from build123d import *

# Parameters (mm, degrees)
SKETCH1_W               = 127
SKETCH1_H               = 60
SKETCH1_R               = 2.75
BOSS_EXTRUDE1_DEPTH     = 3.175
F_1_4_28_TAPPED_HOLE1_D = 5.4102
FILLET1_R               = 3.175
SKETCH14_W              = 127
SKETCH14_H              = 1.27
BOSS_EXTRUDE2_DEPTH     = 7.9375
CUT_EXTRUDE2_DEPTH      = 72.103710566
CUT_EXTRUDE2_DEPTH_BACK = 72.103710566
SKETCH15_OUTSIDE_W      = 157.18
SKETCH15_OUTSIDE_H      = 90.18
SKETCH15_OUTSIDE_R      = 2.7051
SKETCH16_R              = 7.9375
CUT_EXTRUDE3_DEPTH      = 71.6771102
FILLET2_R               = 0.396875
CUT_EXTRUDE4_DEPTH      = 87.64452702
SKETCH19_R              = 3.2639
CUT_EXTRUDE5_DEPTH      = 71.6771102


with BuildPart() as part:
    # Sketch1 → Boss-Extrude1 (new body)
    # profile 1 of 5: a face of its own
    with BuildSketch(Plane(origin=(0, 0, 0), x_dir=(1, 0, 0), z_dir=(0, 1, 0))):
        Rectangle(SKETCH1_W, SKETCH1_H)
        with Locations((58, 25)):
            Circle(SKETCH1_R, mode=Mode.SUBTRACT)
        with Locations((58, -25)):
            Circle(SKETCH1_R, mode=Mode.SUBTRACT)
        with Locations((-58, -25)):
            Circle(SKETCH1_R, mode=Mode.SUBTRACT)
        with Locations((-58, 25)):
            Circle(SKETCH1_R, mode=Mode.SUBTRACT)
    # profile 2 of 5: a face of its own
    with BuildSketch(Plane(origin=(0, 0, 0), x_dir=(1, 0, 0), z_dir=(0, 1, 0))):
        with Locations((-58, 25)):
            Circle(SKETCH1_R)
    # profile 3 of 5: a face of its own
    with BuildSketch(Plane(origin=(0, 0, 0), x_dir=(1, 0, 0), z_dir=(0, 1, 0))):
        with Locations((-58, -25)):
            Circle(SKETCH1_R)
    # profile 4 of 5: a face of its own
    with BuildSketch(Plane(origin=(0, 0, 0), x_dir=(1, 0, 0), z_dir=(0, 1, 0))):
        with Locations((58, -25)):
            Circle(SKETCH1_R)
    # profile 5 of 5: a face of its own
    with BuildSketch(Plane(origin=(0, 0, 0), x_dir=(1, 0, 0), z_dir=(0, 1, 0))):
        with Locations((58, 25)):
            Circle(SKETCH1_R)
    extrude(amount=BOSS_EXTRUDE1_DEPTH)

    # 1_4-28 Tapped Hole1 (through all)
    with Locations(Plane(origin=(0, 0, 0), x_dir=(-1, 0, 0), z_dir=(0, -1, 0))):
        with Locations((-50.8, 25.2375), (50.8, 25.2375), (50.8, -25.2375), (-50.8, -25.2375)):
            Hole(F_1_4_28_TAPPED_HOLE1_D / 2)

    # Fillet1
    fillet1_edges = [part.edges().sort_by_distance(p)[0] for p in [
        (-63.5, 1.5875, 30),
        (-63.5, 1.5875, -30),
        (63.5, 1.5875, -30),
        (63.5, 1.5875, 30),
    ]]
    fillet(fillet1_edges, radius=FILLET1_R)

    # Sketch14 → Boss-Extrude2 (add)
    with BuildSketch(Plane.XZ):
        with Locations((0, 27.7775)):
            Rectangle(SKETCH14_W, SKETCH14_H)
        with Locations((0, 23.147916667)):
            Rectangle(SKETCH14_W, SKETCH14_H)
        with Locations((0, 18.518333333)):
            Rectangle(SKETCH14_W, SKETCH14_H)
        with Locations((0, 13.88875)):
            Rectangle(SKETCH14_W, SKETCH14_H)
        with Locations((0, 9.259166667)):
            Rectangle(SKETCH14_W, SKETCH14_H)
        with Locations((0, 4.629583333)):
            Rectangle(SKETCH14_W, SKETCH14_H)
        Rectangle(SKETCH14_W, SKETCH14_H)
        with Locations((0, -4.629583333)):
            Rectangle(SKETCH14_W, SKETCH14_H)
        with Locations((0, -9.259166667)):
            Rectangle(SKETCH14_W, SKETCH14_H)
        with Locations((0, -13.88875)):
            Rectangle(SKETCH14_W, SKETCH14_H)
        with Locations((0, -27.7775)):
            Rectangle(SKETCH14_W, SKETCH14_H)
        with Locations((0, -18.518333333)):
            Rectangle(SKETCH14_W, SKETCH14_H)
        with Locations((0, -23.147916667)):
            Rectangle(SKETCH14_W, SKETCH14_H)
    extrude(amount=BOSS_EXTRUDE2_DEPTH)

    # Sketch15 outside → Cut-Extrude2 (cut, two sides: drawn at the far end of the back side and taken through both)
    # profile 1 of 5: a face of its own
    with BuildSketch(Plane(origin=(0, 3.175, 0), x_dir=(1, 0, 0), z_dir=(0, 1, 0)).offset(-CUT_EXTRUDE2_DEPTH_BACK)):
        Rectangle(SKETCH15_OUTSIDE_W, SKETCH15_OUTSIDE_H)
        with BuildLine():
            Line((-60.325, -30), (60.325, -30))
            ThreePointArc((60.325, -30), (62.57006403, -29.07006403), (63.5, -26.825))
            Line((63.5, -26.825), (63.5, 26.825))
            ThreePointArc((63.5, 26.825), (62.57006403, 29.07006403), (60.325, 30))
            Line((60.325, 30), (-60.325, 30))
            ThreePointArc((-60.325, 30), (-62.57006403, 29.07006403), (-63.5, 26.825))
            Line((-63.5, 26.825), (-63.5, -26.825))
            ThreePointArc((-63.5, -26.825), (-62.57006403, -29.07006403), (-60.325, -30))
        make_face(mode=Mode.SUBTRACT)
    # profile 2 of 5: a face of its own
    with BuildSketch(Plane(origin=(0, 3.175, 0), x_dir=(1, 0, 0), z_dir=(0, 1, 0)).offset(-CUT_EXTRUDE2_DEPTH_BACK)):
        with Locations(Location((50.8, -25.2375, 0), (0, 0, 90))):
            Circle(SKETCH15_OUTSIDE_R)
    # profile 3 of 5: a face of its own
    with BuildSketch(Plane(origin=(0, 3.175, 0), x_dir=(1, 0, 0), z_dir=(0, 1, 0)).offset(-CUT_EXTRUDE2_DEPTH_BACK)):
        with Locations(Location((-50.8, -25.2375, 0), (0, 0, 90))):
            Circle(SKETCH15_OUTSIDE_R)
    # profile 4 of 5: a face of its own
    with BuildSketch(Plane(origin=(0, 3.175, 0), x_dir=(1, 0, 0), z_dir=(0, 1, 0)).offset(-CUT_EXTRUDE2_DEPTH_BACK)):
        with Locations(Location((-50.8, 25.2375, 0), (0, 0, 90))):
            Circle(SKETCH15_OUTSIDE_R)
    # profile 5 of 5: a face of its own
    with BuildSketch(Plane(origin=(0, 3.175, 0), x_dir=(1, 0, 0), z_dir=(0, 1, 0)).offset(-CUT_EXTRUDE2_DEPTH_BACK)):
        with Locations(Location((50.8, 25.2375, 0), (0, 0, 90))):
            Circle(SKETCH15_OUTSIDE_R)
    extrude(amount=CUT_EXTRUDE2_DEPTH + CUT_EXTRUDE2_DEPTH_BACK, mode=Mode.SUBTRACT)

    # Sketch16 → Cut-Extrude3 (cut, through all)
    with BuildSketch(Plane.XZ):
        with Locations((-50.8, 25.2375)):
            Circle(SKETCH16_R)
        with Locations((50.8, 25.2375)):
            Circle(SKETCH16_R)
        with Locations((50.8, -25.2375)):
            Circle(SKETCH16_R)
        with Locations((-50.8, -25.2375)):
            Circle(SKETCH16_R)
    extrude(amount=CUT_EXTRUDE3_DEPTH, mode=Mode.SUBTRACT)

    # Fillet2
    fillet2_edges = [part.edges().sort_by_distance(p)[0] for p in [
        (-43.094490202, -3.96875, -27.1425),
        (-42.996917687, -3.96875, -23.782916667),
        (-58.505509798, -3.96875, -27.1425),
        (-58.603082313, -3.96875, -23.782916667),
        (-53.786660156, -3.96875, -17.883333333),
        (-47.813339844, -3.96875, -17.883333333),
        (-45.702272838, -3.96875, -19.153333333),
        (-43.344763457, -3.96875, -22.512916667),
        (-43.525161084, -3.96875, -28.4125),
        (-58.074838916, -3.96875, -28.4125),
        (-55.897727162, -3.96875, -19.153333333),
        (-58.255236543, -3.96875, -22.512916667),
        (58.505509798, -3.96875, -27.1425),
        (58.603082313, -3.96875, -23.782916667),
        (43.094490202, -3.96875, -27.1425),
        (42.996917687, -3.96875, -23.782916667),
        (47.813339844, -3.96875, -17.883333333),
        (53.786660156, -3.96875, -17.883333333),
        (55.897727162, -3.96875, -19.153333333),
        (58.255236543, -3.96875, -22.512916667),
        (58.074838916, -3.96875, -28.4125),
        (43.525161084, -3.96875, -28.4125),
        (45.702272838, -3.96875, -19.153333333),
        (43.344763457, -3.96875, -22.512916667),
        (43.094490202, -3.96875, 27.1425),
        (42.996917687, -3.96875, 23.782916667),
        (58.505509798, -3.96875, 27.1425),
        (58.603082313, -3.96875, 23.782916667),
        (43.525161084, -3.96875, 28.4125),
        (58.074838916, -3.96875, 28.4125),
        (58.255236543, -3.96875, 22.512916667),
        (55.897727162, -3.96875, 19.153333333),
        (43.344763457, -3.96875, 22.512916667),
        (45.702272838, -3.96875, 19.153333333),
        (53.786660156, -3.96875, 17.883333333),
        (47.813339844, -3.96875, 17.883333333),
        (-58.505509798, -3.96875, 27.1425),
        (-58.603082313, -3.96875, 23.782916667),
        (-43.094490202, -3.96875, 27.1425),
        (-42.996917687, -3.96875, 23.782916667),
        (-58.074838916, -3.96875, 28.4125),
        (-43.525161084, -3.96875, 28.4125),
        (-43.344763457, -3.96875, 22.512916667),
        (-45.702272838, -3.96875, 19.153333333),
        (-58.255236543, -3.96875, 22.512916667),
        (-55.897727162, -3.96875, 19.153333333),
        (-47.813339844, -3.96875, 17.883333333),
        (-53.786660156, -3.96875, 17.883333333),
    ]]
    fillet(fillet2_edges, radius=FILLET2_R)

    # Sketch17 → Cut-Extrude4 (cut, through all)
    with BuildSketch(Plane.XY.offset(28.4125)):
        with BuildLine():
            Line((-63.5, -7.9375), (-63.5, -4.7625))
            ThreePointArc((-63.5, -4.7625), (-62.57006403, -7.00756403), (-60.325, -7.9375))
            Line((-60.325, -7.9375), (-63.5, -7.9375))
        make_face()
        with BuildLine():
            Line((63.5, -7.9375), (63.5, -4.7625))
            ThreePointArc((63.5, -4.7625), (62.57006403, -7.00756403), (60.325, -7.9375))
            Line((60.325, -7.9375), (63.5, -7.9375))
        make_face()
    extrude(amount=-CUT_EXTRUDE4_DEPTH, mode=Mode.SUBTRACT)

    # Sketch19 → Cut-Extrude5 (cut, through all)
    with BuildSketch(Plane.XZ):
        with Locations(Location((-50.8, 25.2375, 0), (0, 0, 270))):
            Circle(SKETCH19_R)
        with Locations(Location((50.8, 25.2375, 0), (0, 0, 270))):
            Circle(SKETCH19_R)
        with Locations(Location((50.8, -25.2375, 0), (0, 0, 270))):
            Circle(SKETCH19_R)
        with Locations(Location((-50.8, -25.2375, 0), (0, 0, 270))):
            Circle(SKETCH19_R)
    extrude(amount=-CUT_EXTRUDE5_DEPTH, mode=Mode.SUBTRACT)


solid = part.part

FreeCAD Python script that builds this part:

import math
import FreeCAD as App
import Part
import Sketcher
Q = App.Units.Quantity


def edges_at(feature, points):
    """Names of the edges that pass closest to the given points."""
    edges = feature.Shape.Edges
    near = lambda p: min(range(len(edges)), key=lambda i: edges[i].distToShape(Part.Vertex(*p))[0])
    return sorted({f"Edge{near(p) + 1}" for p in points})

doc = App.newDocument("Part")
params = doc.addObject("Spreadsheet::Sheet", "Params")
for row, (alias, value) in enumerate([
    ("sketch1_width", "5 in"),
    ("pad1_length", "0.125 in"),
    ("sketch2_diameter", "0.213 in"),
    ("hole_diameter", "0.213 in"),
    ("fillet_radius", "0.125 in"),
    ("sketch3_width", "5 in"),
    ("sketch3_height", "0.05 in"),
    ("pad2_length", "0.3125 in"),
    ("sketch4_diameter", "0.213 in"),
    ("sketch4_radius", "0.125 in"),
    ("sketch4_width", "4.75 in"),
    ("sketch5_diameter", "0.625 in"),
    ("fillet2_radius", "0.015625 in"),
    ("sketch6_radius", "0.125 in"),
    ("sketch7_diameter", "0.257 in"),
], start=1):
    params.set(f"A{row}", alias)
    params.set(f"B{row}", "=" + value)
    params.setAlias(f"B{row}", alias)

body = doc.addObject("PartDesign::Body", "Body")

sketch1 = body.newObject("Sketcher::SketchObject", "Sketch")
sketch1.AttachmentSupport = (doc.getObject("XZ_Plane"), [""])
sketch1.MapMode = "FlatFace"
sketch1.addGeometry([
    Part.LineSegment(App.Vector(-64, -30, 0), App.Vector(-64, 30, 0)),
    Part.LineSegment(App.Vector(-64, 30, 0), App.Vector(64, 30, 0)),
    Part.LineSegment(App.Vector(64, 30, 0), App.Vector(64, -30, 0)),
    Part.LineSegment(App.Vector(64, -30, 0), App.Vector(-64, -30, 0)),
], False)
sketch1.addConstraint([
    Sketcher.Constraint("Coincident", 0, 2, 1, 1),
    Sketcher.Constraint("Coincident", 1, 2, 2, 1),
    Sketcher.Constraint("Coincident", 2, 2, 3, 1),
    Sketcher.Constraint("Coincident", 3, 2, 0, 1),
    Sketcher.Constraint("Vertical", 0),
    Sketcher.Constraint("Horizontal", 1),
    Sketcher.Constraint("Vertical", 2),
    Sketcher.Constraint("Horizontal", 3),
    Sketcher.Constraint("Symmetric", 0, 2, 2, 2, -1, 1),
    Sketcher.Constraint("DistanceX", 1, 1, 1, 2, Q("5 in")),
    Sketcher.Constraint("DistanceY", 0, 1, 0, 2, 60.0),
])
sketch1.setExpression("Constraints[9]", "Params.sketch1_width")
pad1 = body.newObject("PartDesign::Pad", "Pad")
pad1.Profile = sketch1
pad1.setExpression("Length", "Params.pad1_length")
pad1.Reversed = True

sketch2 = body.newObject("Sketcher::SketchObject", "Sketch001")
sketch2.AttachmentSupport = (doc.getObject("XZ_Plane"), [""])
sketch2.MapMode = "FlatFace"
sketch2.addGeometry([
    Part.Circle(App.Vector(50.8, -25.2, 0), App.Vector(0, 0, 1), 2.7),
    Part.Circle(App.Vector(-50.8, -25.2, 0), App.Vector(0, 0, 1), 2.7),
    Part.Circle(App.Vector(-50.8, 25.2, 0), App.Vector(0, 0, 1), 2.7),
    Part.Circle(App.Vector(50.8, 25.2, 0), App.Vector(0, 0, 1), 2.7),
], False)
sketch2.addConstraint([
    Sketcher.Constraint("Equal", 0, 1),
    Sketcher.Constraint("Equal", 1, 2),
    Sketcher.Constraint("Equal", 2, 3),
    Sketcher.Constraint("Symmetric", 0, 3, 2, 3, -1, 1),
    Sketcher.Constraint("Symmetric", 1, 3, 3, 3, -1, 1),
    Sketcher.Constraint("Symmetric", 0, 3, 1, 3, -2),
    Sketcher.Constraint("Diameter", 0, Q("0.213 in")),
    Sketcher.Constraint("DistanceX", -1, 1, 0, 3, Q("2 in")),
    Sketcher.Constraint("DistanceY", 0, 3, -1, 1, 25.2375),
])
sketch2.setExpression("Constraints[6]", "Params.sketch2_diameter")
doc.recompute()
hole = body.newObject("PartDesign::Hole", "Hole")
hole.Profile = sketch2
hole.ThreadType = "None"
hole.setExpression("Diameter", "Params.hole_diameter")
hole.DepthType = "ThroughAll"
doc.recompute()

fillet = body.newObject("PartDesign::Fillet", "Fillet")
fillet.Base = (hole, edges_at(hole, [
    (-63.5, 1.587, 30),
    (-63.5, 1.587, -30),
    (63.5, 1.587, -30),
    (63.5, 1.587, 30),
]))
fillet.setExpression("Radius", "Params.fillet_radius")

sketch3 = body.newObject("Sketcher::SketchObject", "Sketch002")
sketch3.AttachmentSupport = (doc.getObject("XZ_Plane"), [""])
sketch3.MapMode = "FlatFace"
sketch3.addGeometry([
    Part.LineSegment(App.Vector(-63.5, 28.4, 0), App.Vector(-63.5, 27.1, 0)),
    Part.LineSegment(App.Vector(-63.5, 27.1, 0), App.Vector(63.5, 27.1, 0)),
    Part.LineSegment(App.Vector(63.5, 27.1, 0), App.Vector(63.5, 28.4, 0)),
    Part.LineSegment(App.Vector(63.5, 28.4, 0), App.Vector(-63.5, 28.4, 0)),
    Part.LineSegment(App.Vector(-63.5, 23.8, 0), App.Vector(-63.5, 22.5, 0)),
    Part.LineSegment(App.Vector(-63.5, 22.5, 0), App.Vector(63.5, 22.5, 0)),
    Part.LineSegment(App.Vector(63.5, 22.5, 0), App.Vector(63.5, 23.8, 0)),
    Part.LineSegment(App.Vector(63.5, 23.8, 0), App.Vector(-63.5, 23.8, 0)),
    Part.LineSegment(App.Vector(-63.5, 19.2, 0), App.Vector(-63.5, 17.9, 0)),
    Part.LineSegment(App.Vector(-63.5, 17.9, 0), App.Vector(63.5, 17.9, 0)),
    Part.LineSegment(App.Vector(63.5, 17.9, 0), App.Vector(63.5, 19.2, 0)),
    Part.LineSegment(App.Vector(63.5, 19.2, 0), App.Vector(-63.5, 19.2, 0)),
    Part.LineSegment(App.Vector(-63.5, 14.5, 0), App.Vector(-63.5, 13.3, 0)),
    Part.LineSegment(App.Vector(-63.5, 13.3, 0), App.Vector(63.5, 13.3, 0)),
    Part.LineSegment(App.Vector(63.5, 13.3, 0), App.Vector(63.5, 14.5, 0)),
    Part.LineSegment(App.Vector(63.5, 14.5, 0), App.Vector(-63.5, 14.5, 0)),
    Part.LineSegment(App.Vector(-63.5, 9.9, 0), App.Vector(-63.5, 8.6, 0)),
    Part.LineSegment(App.Vector(-63.5, 8.6, 0), App.Vector(63.5, 8.6, 0)),
    Part.LineSegment(App.Vector(63.5, 8.6, 0), App.Vector(63.5, 9.9, 0)),
    Part.LineSegment(App.Vector(63.5, 9.9, 0), App.Vector(-63.5, 9.9, 0)),
    Part.LineSegment(App.Vector(-63.5, 5.3, 0), App.Vector(-63.5, 4, 0)),
    Part.LineSegment(App.Vector(-63.5, 4, 0), App.Vector(63.5, 4, 0)),
    Part.LineSegment(App.Vector(63.5, 4, 0), App.Vector(63.5, 5.3, 0)),
    Part.LineSegment(App.Vector(63.5, 5.3, 0), App.Vector(-63.5, 5.3, 0)),
    Part.LineSegment(App.Vector(-63.5, 0.6, 0), App.Vector(-63.5, -0.6, 0)),
    Part.LineSegment(App.Vector(-63.5, -0.6, 0), App.Vector(63.5, -0.6, 0)),
    Part.LineSegment(App.Vector(63.5, -0.6, 0), App.Vector(63.5, 0.6, 0)),
    Part.LineSegment(App.Vector(63.5, 0.6, 0), App.Vector(-63.5, 0.6, 0)),
    Part.LineSegment(App.Vector(-63.5, -4, 0), App.Vector(-63.5, -5.3, 0)),
    Part.LineSegment(App.Vector(-63.5, -5.3, 0), App.Vector(63.5, -5.3, 0)),
    Part.LineSegment(App.Vector(63.5, -5.3, 0), App.Vector(63.5, -4, 0)),
    Part.LineSegment(App.Vector(63.5, -4, 0), App.Vector(-63.5, -4, 0)),
    Part.LineSegment(App.Vector(-63.5, -8.6, 0), App.Vector(-63.5, -9.9, 0)),
    Part.LineSegment(App.Vector(-63.5, -9.9, 0), App.Vector(63.5, -9.9, 0)),
    Part.LineSegment(App.Vector(63.5, -9.9, 0), App.Vector(63.5, -8.6, 0)),
    Part.LineSegment(App.Vector(63.5, -8.6, 0), App.Vector(-63.5, -8.6, 0)),
    Part.LineSegment(App.Vector(-63.5, -13.3, 0), App.Vector(-63.5, -14.5, 0)),
    Part.LineSegment(App.Vector(-63.5, -14.5, 0), App.Vector(63.5, -14.5, 0)),
    Part.LineSegment(App.Vector(63.5, -14.5, 0), App.Vector(63.5, -13.3, 0)),
    Part.LineSegment(App.Vector(63.5, -13.3, 0), App.Vector(-63.5, -13.3, 0)),
    Part.LineSegment(App.Vector(-63.5, -27.1, 0), App.Vector(-63.5, -28.4, 0)),
    Part.LineSegment(App.Vector(-63.5, -28.4, 0), App.Vector(63.5, -28.4, 0)),
    Part.LineSegment(App.Vector(63.5, -28.4, 0), App.Vector(63.5, -27.1, 0)),
    Part.LineSegment(App.Vector(63.5, -27.1, 0), App.Vector(-63.5, -27.1, 0)),
    Part.LineSegment(App.Vector(-63.5, -17.9, 0), App.Vector(-63.5, -19.2, 0)),
    Part.LineSegment(App.Vector(-63.5, -19.2, 0), App.Vector(63.5, -19.2, 0)),
    Part.LineSegment(App.Vector(63.5, -19.2, 0), App.Vector(63.5, -17.9, 0)),
    Part.LineSegment(App.Vector(63.5, -17.9, 0), App.Vector(-63.5, -17.9, 0)),
    Part.LineSegment(App.Vector(-63.5, -22.5, 0), App.Vector(-63.5, -23.8, 0)),
    Part.LineSegment(App.Vector(-63.5, -23.8, 0), App.Vector(63.5, -23.8, 0)),
    Part.LineSegment(App.Vector(63.5, -23.8, 0), App.Vector(63.5, -22.5, 0)),
    Part.LineSegment(App.Vector(63.5, -22.5, 0), App.Vector(-63.5, -22.5, 0)),
], False)
sketch3.addConstraint([
    Sketcher.Constraint("Coincident", 0, 2, 1, 1),
    Sketcher.Constraint("Coincident", 1, 2, 2, 1),
    Sketcher.Constraint("Coincident", 2, 2, 3, 1),
    Sketcher.Constraint("Coincident", 3, 2, 0, 1),
    Sketcher.Constraint("Coincident", 4, 2, 5, 1),
    Sketcher.Constraint("Coincident", 5, 2, 6, 1),
    Sketcher.Constraint("Coincident", 6, 2, 7, 1),
    Sketcher.Constraint("Coincident", 7, 2, 4, 1),
    Sketcher.Constraint("Coincident", 8, 2, 9, 1),
    Sketcher.Constraint("Coincident", 9, 2, 10, 1),
    Sketcher.Constraint("Coincident", 10, 2, 11, 1),
    Sketcher.Constraint("Coincident", 11, 2, 8, 1),
    Sketcher.Constraint("Coincident", 12, 2, 13, 1),
    Sketcher.Constraint("Coincident", 13, 2, 14, 1),
    Sketcher.Constraint("Coincident", 14, 2, 15, 1),
    Sketcher.Constraint("Coincident", 15, 2, 12, 1),
    Sketcher.Constraint("Coincident", 16, 2, 17, 1),
    Sketcher.Constraint("Coincident", 17, 2, 18, 1),
    Sketcher.Constraint("Coincident", 18, 2, 19, 1),
    Sketcher.Constraint("Coincident", 19, 2, 16, 1),
    Sketcher.Constraint("Coincident", 20, 2, 21, 1),
    Sketcher.Constraint("Coincident", 21, 2, 22, 1),
    Sketcher.Constraint("Coincident", 22, 2, 23, 1),
    Sketcher.Constraint("Coincident", 23, 2, 20, 1),
    Sketcher.Constraint("Coincident", 24, 2, 25, 1),
    Sketcher.Constraint("Coincident", 25, 2, 26, 1),
    Sketcher.Constraint("Coincident", 26, 2, 27, 1),
    Sketcher.Constraint("Coincident", 27, 2, 24, 1),
    Sketcher.Constraint("Coincident", 28, 2, 29, 1),
    Sketcher.Constraint("Coincident", 29, 2, 30, 1),
    Sketcher.Constraint("Coincident", 30, 2, 31, 1),
    Sketcher.Constraint("Coincident", 31, 2, 28, 1),
    Sketcher.Constraint("Coincident", 32, 2, 33, 1),
    Sketcher.Constraint("Coincident", 33, 2, 34, 1),
    Sketcher.Constraint("Coincident", 34, 2, 35, 1),
    Sketcher.Constraint("Coincident", 35, 2, 32, 1),
    Sketcher.Constraint("Coincident", 36, 2, 37, 1),
    Sketcher.Constraint("Coincident", 37, 2, 38, 1),
    Sketcher.Constraint("Coincident", 38, 2, 39, 1),
    Sketcher.Constraint("Coincident", 39, 2, 36, 1),
    Sketcher.Constraint("Coincident", 40, 2, 41, 1),
    Sketcher.Constraint("Coincident", 41, 2, 42, 1),
    Sketcher.Constraint("Coincident", 42, 2, 43, 1),
    Sketcher.Constraint("Coincident", 43, 2, 40, 1),
    Sketcher.Constraint("Coincident", 44, 2, 45, 1),
    Sketcher.Constraint("Coincident", 45, 2, 46, 1),
    Sketcher.Constraint("Coincident", 46, 2, 47, 1),
    Sketcher.Constraint("Coincident", 47, 2, 44, 1),
    Sketcher.Constraint("Coincident", 48, 2, 49, 1),
    Sketcher.Constraint("Coincident", 49, 2, 50, 1),
    Sketcher.Constraint("Coincident", 50, 2, 51, 1),
    Sketcher.Constraint("Coincident", 51, 2, 48, 1),
    Sketcher.Constraint("Vertical", 0),
    Sketcher.Constraint("Horizontal", 1),
    Sketcher.Constraint("Vertical", 2),
    Sketcher.Constraint("Horizontal", 3),
    Sketcher.Constraint("Vertical", 4),
    Sketcher.Constraint("Horizontal", 5),
    Sketcher.Constraint("Vertical", 6),
    Sketcher.Constraint("Horizontal", 7),
    Sketcher.Constraint("Vertical", 8),
    Sketcher.Constraint("Horizontal", 9),
    Sketcher.Constraint("Vertical", 10),
    Sketcher.Constraint("Horizontal", 11),
    Sketcher.Constraint("Vertical", 12),
    Sketcher.Constraint("Horizontal", 13),
    Sketcher.Constraint("Vertical", 14),
    Sketcher.Constraint("Horizontal", 15),
    Sketcher.Constraint("Vertical", 16),
    Sketcher.Constraint("Horizontal", 17),
    Sketcher.Constraint("Vertical", 18),
    Sketcher.Constraint("Horizontal", 19),
    Sketcher.Constraint("Vertical", 20),
    Sketcher.Constraint("Horizontal", 21),
    Sketcher.Constraint("Vertical", 22),
    Sketcher.Constraint("Horizontal", 23),
    Sketcher.Constraint("Vertical", 24),
    Sketcher.Constraint("Horizontal", 25),
    Sketcher.Constraint("Vertical", 26),
    Sketcher.Constraint("Horizontal", 27),
    Sketcher.Constraint("Vertical", 28),
    Sketcher.Constraint("Horizontal", 29),
    Sketcher.Constraint("Vertical", 30),
    Sketcher.Constraint("Horizontal", 31),
    Sketcher.Constraint("Vertical", 32),
    Sketcher.Constraint("Horizontal", 33),
    Sketcher.Constraint("Vertical", 34),
    Sketcher.Constraint("Horizontal", 35),
    Sketcher.Constraint("Vertical", 36),
    Sketcher.Constraint("Horizontal", 37),
    Sketcher.Constraint("Vertical", 38),
    Sketcher.Constraint("Horizontal", 39),
    Sketcher.Constraint("Vertical", 40),
    Sketcher.Constraint("Horizontal", 41),
    Sketcher.Constraint("Vertical", 42),
    Sketcher.Constraint("Horizontal", 43),
    Sketcher.Constraint("Vertical", 44),
    Sketcher.Constraint("Horizontal", 45),
    Sketcher.Constraint("Vertical", 46),
    Sketcher.Constraint("Horizontal", 47),
    Sketcher.Constraint("Vertical", 48),
    Sketcher.Constraint("Horizontal", 49),
    Sketcher.Constraint("Vertical", 50),
    Sketcher.Constraint("Horizontal", 51),
    Sketcher.Constraint("Symmetric", 24, 2, 26, 2, -1, 1),
    Sketcher.Constraint("Symmetric", 22, 2, 28, 2, -1, 1),
    Sketcher.Constraint("Symmetric", 20, 2, 30, 2, -1, 1),
    Sketcher.Constraint("Symmetric", 18, 2, 32, 2, -1, 1),
    Sketcher.Constraint("Symmetric", 16, 2, 34, 2, -1, 1),
    Sketcher.Constraint("Symmetric", 14, 2, 36, 2, -1, 1),
    Sketcher.Constraint("Symmetric", 12, 2, 38, 2, -1, 1),
    Sketcher.Constraint("Symmetric", 2, 2, 40, 2, -1, 1),
    Sketcher.Constraint("Symmetric", 0, 2, 42, 2, -1, 1),
    Sketcher.Constraint("Symmetric", 10, 2, 44, 2, -1, 1),
    Sketcher.Constraint("Symmetric", 8, 2, 46, 2, -1, 1),
    Sketcher.Constraint("Symmetric", 6, 2, 48, 2, -1, 1),
    Sketcher.Constraint("Symmetric", 4, 2, 50, 2, -1, 1),
    Sketcher.Constraint("Vertical", 3, 2, 4, 2),
    Sketcher.Constraint("Vertical", 2, 2, 5, 2),
    Sketcher.Constraint("Vertical", 7, 2, 8, 2),
    Sketcher.Constraint("Vertical", 6, 2, 9, 2),
    Sketcher.Constraint("Vertical", 11, 2, 12, 2),
    Sketcher.Constraint("Vertical", 10, 2, 13, 2),
    Sketcher.Constraint("Vertical", 15, 2, 16, 2),
    Sketcher.Constraint("Vertical", 14, 2, 17, 2),
    Sketcher.Constraint("Vertical", 19, 2, 20, 2),
    Sketcher.Constraint("Vertical", 18, 2, 21, 2),
    Sketcher.Constraint("Vertical", 23, 2, 24, 2),
    Sketcher.Constraint("Vertical", 22, 2, 25, 2),
    Sketcher.Constraint("Equal", 2, 4),
    Sketcher.Constraint("Equal", 6, 8),
    Sketcher.Constraint("Equal", 10, 12),
    Sketcher.Constraint("Equal", 14, 16),
    Sketcher.Constraint("Equal", 18, 20),
    Sketcher.Constraint("Equal", 22, 24),
    Sketcher.Constraint("DistanceX", 1, 1, 1, 2, Q("5 in")),
    Sketcher.Constraint("DistanceY", 0, 2, 0, 1, Q("0.05 in")),
    Sketcher.Constraint("DistanceY", -1, 1, 0, 2, 27.1425),
    Sketcher.Constraint("DistanceY", -1, 1, 12, 2, 13.25375),
    Sketcher.Constraint("DistanceY", 16, 2, 4, 2, 13.88875),
    Sketcher.Constraint("DistanceY", 20, 2, 8, 2, 13.88875),
    Sketcher.Constraint("DistanceY", 28, 2, 16, 2, 13.88875),
    Sketcher.Constraint("DistanceY", -1, 1, 4, 2, 22.512917),
])
sketch3.setExpression("Constraints[135]", "Params.sketch3_width")
sketch3.setExpression("Constraints[136]", "Params.sketch3_height")
pad2 = body.newObject("PartDesign::Pad", "Pad001")
pad2.Profile = sketch3
pad2.setExpression("Length", "Params.pad2_length")

sketch4 = body.newObject("Sketcher::SketchObject", "Sketch003")
sketch4.AttachmentSupport = (doc.getObject("XZ_Plane"), [""])
sketch4.MapMode = "FlatFace"
sketch4.AttachmentOffset = App.Placement(App.Vector(0, 0, -0.125 * 25.4), App.Rotation())
sketch4.addGeometry([
    Part.LineSegment(App.Vector(-78.6, -45.1, 0), App.Vector(-78.6, 45.1, 0)),
    Part.LineSegment(App.Vector(-78.6, 45.1, 0), App.Vector(78.6, 45.1, 0)),
    Part.LineSegment(App.Vector(78.6, 45.1, 0), App.Vector(78.6, -45.1, 0)),
    Part.LineSegment(App.Vector(78.6, -45.1, 0), App.Vector(-78.6, -45.1, 0)),
    Part.LineSegment(App.Vector(60.3, 30, 0), App.Vector(-60.3, 30, 0)),
    Part.ArcOfCircle(Part.Circle(App.Vector(-60.3, 26.8, 0), App.Vector(0, 0, 1), 3.2), math.radians(90), math.radians(180)),
    Part.LineSegment(App.Vector(-63.5, 26.8, 0), App.Vector(-63.5, -26.8, 0)),
    Part.ArcOfCircle(Part.Circle(App.Vector(-60.3, -26.8, 0), App.Vector(0, 0, 1), 3.2), math.radians(-180), math.radians(-90)),
    Part.LineSegment(App.Vector(-60.3, -30, 0), App.Vector(60.3, -30, 0)),
    Part.ArcOfCircle(Part.Circle(App.Vector(60.3, -26.8, 0), App.Vector(0, 0, 1), 3.2), math.radians(-90), math.radians(0)),
    Part.LineSegment(App.Vector(63.5, -26.8, 0), App.Vector(63.5, 26.8, 0)),
    Part.ArcOfCircle(Part.Circle(App.Vector(60.3, 26.8, 0), App.Vector(0, 0, 1), 3.2), math.radians(0), math.radians(90)),
    Part.Circle(App.Vector(50.8, 25.2, 0), App.Vector(0, 0, 1), 2.7),
    Part.Circle(App.Vector(-50.8, 25.2, 0), App.Vector(0, 0, 1), 2.7),
    Part.Circle(App.Vector(-50.8, -25.2, 0), App.Vector(0, 0, 1), 2.7),
    Part.Circle(App.Vector(50.8, -25.2, 0), App.Vector(0, 0, 1), 2.7),
], False)
sketch4.addConstraint([
    Sketcher.Constraint("Coincident", 0, 2, 1, 1),
    Sketcher.Constraint("Coincident", 1, 2, 2, 1),
    Sketcher.Constraint("Coincident", 2, 2, 3, 1),
    Sketcher.Constraint("Coincident", 3, 2, 0, 1),
    Sketcher.Constraint("Tangent", 4, 2, 5, 1),
    Sketcher.Constraint("Tangent", 5, 2, 6, 1),
    Sketcher.Constraint("Tangent", 6, 2, 7, 1),
    Sketcher.Constraint("Tangent", 7, 2, 8, 1),
    Sketcher.Constraint("Tangent", 8, 2, 9, 1),
    Sketcher.Constraint("Tangent", 9, 2, 10, 1),
    Sketcher.Constraint("Tangent", 10, 2, 11, 1),
    Sketcher.Constraint("Tangent", 11, 2, 4, 1),
    Sketcher.Constraint("Vertical", 0),
    Sketcher.Constraint("Horizontal", 1),
    Sketcher.Constraint("Vertical", 2),
    Sketcher.Constraint("Horizontal", 3),
    Sketcher.Constraint("Horizontal", 4),
    Sketcher.Constraint("Vertical", 6),
    Sketcher.Constraint("Horizontal", 8),
    Sketcher.Constraint("Vertical", 10),
    Sketcher.Constraint("Equal", 5, 7),
    Sketcher.Constraint("Equal", 7, 9),
    Sketcher.Constraint("Equal", 9, 11),
    Sketcher.Constraint("Equal", 12, 13),
    Sketcher.Constraint("Equal", 13, 14),
    Sketcher.Constraint("Equal", 14, 15),
    Sketcher.Constraint("Symmetric", 5, 3, 9, 3, -1, 1),
    Sketcher.Constraint("Symmetric", 12, 3, 14, 3, -1, 1),
    Sketcher.Constraint("Symmetric", 13, 3, 15, 3, -1, 1),
    Sketcher.Constraint("Symmetric", 0, 2, 2, 2, -1, 1),
    Sketcher.Constraint("Symmetric", 12, 3, 13, 3, -2),
    Sketcher.Constraint("Diameter", 12, Q("0.213 in")),
    Sketcher.Constraint("DistanceX", -1, 1, 12, 3, Q("2 in")),
    Sketcher.Constraint("Radius", 5, Q("0.125 in")),
    Sketcher.Constraint("DistanceX", 4, 2, 4, 1, Q("4.75 in")),
    Sketcher.Constraint("DistanceY", 12, 3, 11, 3, Q("0.0625 in")),
    Sketcher.Constraint("DistanceX", 1, 1, 1, 2, 157.18),
    Sketcher.Constraint("DistanceY", 0, 1, 0, 2, 90.18),
    Sketcher.Constraint("DistanceY", 6, 2, 6, 1, 53.65),
])
sketch4.setExpression("Constraints[31]", "Params.sketch4_diameter")
sketch4.setExpression("Constraints[33]", "Params.sketch4_radius")
sketch4.setExpression("Constraints[34]", "Params.sketch4_width")
pocket1 = body.newObject("PartDesign::Pocket", "Pocket")
pocket1.Profile = sketch4
pocket1.Type = "ThroughAll"
pocket1.Midplane = True

sketch5 = body.newObject("Sketcher::SketchObject", "Sketch004")
sketch5.AttachmentSupport = (doc.getObject("XZ_Plane"), [""])
sketch5.MapMode = "FlatFace"
sketch5.addGeometry([
    Part.Circle(App.Vector(-51, 25, 0), App.Vector(0, 0, 1), 8),
    Part.Circle(App.Vector(51, 25, 0), App.Vector(0, 0, 1), 8),
    Part.Circle(App.Vector(51, -25, 0), App.Vector(0, 0, 1), 8),
    Part.Circle(App.Vector(-51, -25, 0), App.Vector(0, 0, 1), 8),
], False)
sketch5.addConstraint([
    Sketcher.Constraint("Equal", 0, 1),
    Sketcher.Constraint("Equal", 1, 2),
    Sketcher.Constraint("Equal", 2, 3),
    Sketcher.Constraint("Symmetric", 0, 3, 2, 3, -1, 1),
    Sketcher.Constraint("Symmetric", 1, 3, 3, 3, -1, 1),
    Sketcher.Constraint("Symmetric", 0, 3, 1, 3, -2),
    Sketcher.Constraint("Diameter", 0, Q("0.625 in")),
    Sketcher.Constraint("DistanceX", 0, 3, -1, 1, Q("2 in")),
    Sketcher.Constraint("DistanceY", -1, 1, 0, 3, 25.2375),
])
sketch5.setExpression("Constraints[6]", "Params.sketch5_diameter")
pocket2 = body.newObject("PartDesign::Pocket", "Pocket001")
pocket2.Profile = sketch5
pocket2.Type = "ThroughAll"
pocket2.Reversed = True
doc.recompute()

fillet2 = body.newObject("PartDesign::Fillet", "Fillet001")
fillet2.Base = (pocket2, edges_at(pocket2, [
    (-43.094, -3.969, -27.142),
    (-42.997, -3.969, -23.783),
    (-58.506, -3.969, -27.142),
    (-58.603, -3.969, -23.783),
    (-53.787, -3.969, -17.883),
    (-47.813, -3.969, -17.883),
    (-45.702, -3.969, -19.153),
    (-43.345, -3.969, -22.513),
    (-43.525, -3.969, -28.413),
    (-58.075, -3.969, -28.413),
    (-55.898, -3.969, -19.153),
    (-58.255, -3.969, -22.513),
    (58.506, -3.969, -27.142),
    (58.603, -3.969, -23.783),
    (43.094, -3.969, -27.142),
    (42.997, -3.969, -23.783),
    (47.813, -3.969, -17.883),
    (53.787, -3.969, -17.883),
    (55.898, -3.969, -19.153),
    (58.255, -3.969, -22.513),
    (58.075, -3.969, -28.413),
    (43.525, -3.969, -28.413),
    (45.702, -3.969, -19.153),
    (43.345, -3.969, -22.513),
    (43.094, -3.969, 27.142),
    (42.997, -3.969, 23.783),
    (58.506, -3.969, 27.142),
    (58.603, -3.969, 23.783),
    (43.525, -3.969, 28.413),
    (58.075, -3.969, 28.413),
    (58.255, -3.969, 22.513),
    (55.898, -3.969, 19.153),
    (43.345, -3.969, 22.513),
    (45.702, -3.969, 19.153),
    (53.787, -3.969, 17.883),
    (47.813, -3.969, 17.883),
    (-58.506, -3.969, 27.142),
    (-58.603, -3.969, 23.783),
    (-43.094, -3.969, 27.142),
    (-42.997, -3.969, 23.783),
    (-58.075, -3.969, 28.413),
    (-43.525, -3.969, 28.413),
    (-43.345, -3.969, 22.513),
    (-45.702, -3.969, 19.153),
    (-58.255, -3.969, 22.513),
    (-55.898, -3.969, 19.153),
    (-47.813, -3.969, 17.883),
    (-53.787, -3.969, 17.883),
]))
fillet2.setExpression("Radius", "Params.fillet2_radius")

sketch6 = body.newObject("Sketcher::SketchObject", "Sketch005")
sketch6.AttachmentSupport = (doc.getObject("XY_Plane"), [""])
sketch6.MapMode = "FlatFace"
sketch6.AttachmentOffset = App.Placement(App.Vector(0, 0, 28.4125), App.Rotation())
sketch6.addGeometry([
    Part.LineSegment(App.Vector(-63.5, -4.8, 0), App.Vector(-63.5, -7.9, 0)),
    Part.LineSegment(App.Vector(-63.5, -7.9, 0), App.Vector(-60.3, -7.9, 0)),
    Part.ArcOfCircle(Part.Circle(App.Vector(-60.3, -4.8, 0), App.Vector(0, 0, 1), 3.2), math.radians(-180), math.radians(-90)),
    Part.LineSegment(App.Vector(63.5, -7.9, 0), App.Vector(63.5, -4.8, 0)),
    Part.ArcOfCircle(Part.Circle(App.Vector(60.3, -4.8, 0), App.Vector(0, 0, 1), 3.2), math.radians(-90), math.radians(0)),
    Part.LineSegment(App.Vector(60.3, -7.9, 0), App.Vector(63.5, -7.9, 0)),
], False)
sketch6.addConstraint([
    Sketcher.Constraint("Coincident", 0, 2, 1, 1),
    Sketcher.Constraint("Tangent", 1, 2, 2, 2),
    Sketcher.Constraint("Tangent", 2, 1, 0, 1),
    Sketcher.Constraint("Tangent", 3, 2, 4, 2),
    Sketcher.Constraint("Tangent", 4, 1, 5, 1),
    Sketcher.Constraint("Coincident", 5, 2, 3, 1),
    Sketcher.Constraint("Vertical", 0),
    Sketcher.Constraint("Horizontal", 1),
    Sketcher.Constraint("Vertical", 3),
    Sketcher.Constraint("Horizontal", 5),
    Sketcher.Constraint("Equal", 2, 4),
    Sketcher.Constraint("Symmetric", 2, 3, 4, 3, -2),
    Sketcher.Constraint("Radius", 2, Q("0.125 in")),
    Sketcher.Constraint("DistanceX", 2, 1, 3, 2, Q("5 in")),
    Sketcher.Constraint("DistanceY", 2, 3, -1, 1, Q("0.1875 in")),
])
sketch6.setExpression("Constraints[12]", "Params.sketch6_radius")
pocket3 = body.newObject("PartDesign::Pocket", "Pocket002")
pocket3.Profile = sketch6
pocket3.Type = "ThroughAll"

sketch7 = body.newObject("Sketcher::SketchObject", "Sketch006")
sketch7.AttachmentSupport = (doc.getObject("XZ_Plane"), [""])
sketch7.MapMode = "FlatFace"
sketch7.addGeometry([
    Part.Circle(App.Vector(-50.8, 25.2, 0), App.Vector(0, 0, 1), 3.3),
    Part.Circle(App.Vector(50.8, 25.2, 0), App.Vector(0, 0, 1), 3.3),
    Part.Circle(App.Vector(50.8, -25.2, 0), App.Vector(0, 0, 1), 3.3),
    Part.Circle(App.Vector(-50.8, -25.2, 0), App.Vector(0, 0, 1), 3.3),
], False)
sketch7.addConstraint([
    Sketcher.Constraint("Equal", 0, 1),
    Sketcher.Constraint("Equal", 1, 2),
    Sketcher.Constraint("Equal", 2, 3),
    Sketcher.Constraint("Symmetric", 0, 3, 2, 3, -1, 1),
    Sketcher.Constraint("Symmetric", 1, 3, 3, 3, -1, 1),
    Sketcher.Constraint("Symmetric", 0, 3, 1, 3, -2),
    Sketcher.Constraint("Diameter", 0, Q("0.257 in")),
    Sketcher.Constraint("DistanceX", 0, 3, -1, 1, Q("2 in")),
    Sketcher.Constraint("DistanceY", -1, 1, 0, 3, 25.2375),
])
sketch7.setExpression("Constraints[6]", "Params.sketch7_diameter")
pocket4 = body.newObject("PartDesign::Pocket", "Pocket003")
pocket4.Profile = sketch7
pocket4.Type = "ThroughAll"

doc.recompute()
